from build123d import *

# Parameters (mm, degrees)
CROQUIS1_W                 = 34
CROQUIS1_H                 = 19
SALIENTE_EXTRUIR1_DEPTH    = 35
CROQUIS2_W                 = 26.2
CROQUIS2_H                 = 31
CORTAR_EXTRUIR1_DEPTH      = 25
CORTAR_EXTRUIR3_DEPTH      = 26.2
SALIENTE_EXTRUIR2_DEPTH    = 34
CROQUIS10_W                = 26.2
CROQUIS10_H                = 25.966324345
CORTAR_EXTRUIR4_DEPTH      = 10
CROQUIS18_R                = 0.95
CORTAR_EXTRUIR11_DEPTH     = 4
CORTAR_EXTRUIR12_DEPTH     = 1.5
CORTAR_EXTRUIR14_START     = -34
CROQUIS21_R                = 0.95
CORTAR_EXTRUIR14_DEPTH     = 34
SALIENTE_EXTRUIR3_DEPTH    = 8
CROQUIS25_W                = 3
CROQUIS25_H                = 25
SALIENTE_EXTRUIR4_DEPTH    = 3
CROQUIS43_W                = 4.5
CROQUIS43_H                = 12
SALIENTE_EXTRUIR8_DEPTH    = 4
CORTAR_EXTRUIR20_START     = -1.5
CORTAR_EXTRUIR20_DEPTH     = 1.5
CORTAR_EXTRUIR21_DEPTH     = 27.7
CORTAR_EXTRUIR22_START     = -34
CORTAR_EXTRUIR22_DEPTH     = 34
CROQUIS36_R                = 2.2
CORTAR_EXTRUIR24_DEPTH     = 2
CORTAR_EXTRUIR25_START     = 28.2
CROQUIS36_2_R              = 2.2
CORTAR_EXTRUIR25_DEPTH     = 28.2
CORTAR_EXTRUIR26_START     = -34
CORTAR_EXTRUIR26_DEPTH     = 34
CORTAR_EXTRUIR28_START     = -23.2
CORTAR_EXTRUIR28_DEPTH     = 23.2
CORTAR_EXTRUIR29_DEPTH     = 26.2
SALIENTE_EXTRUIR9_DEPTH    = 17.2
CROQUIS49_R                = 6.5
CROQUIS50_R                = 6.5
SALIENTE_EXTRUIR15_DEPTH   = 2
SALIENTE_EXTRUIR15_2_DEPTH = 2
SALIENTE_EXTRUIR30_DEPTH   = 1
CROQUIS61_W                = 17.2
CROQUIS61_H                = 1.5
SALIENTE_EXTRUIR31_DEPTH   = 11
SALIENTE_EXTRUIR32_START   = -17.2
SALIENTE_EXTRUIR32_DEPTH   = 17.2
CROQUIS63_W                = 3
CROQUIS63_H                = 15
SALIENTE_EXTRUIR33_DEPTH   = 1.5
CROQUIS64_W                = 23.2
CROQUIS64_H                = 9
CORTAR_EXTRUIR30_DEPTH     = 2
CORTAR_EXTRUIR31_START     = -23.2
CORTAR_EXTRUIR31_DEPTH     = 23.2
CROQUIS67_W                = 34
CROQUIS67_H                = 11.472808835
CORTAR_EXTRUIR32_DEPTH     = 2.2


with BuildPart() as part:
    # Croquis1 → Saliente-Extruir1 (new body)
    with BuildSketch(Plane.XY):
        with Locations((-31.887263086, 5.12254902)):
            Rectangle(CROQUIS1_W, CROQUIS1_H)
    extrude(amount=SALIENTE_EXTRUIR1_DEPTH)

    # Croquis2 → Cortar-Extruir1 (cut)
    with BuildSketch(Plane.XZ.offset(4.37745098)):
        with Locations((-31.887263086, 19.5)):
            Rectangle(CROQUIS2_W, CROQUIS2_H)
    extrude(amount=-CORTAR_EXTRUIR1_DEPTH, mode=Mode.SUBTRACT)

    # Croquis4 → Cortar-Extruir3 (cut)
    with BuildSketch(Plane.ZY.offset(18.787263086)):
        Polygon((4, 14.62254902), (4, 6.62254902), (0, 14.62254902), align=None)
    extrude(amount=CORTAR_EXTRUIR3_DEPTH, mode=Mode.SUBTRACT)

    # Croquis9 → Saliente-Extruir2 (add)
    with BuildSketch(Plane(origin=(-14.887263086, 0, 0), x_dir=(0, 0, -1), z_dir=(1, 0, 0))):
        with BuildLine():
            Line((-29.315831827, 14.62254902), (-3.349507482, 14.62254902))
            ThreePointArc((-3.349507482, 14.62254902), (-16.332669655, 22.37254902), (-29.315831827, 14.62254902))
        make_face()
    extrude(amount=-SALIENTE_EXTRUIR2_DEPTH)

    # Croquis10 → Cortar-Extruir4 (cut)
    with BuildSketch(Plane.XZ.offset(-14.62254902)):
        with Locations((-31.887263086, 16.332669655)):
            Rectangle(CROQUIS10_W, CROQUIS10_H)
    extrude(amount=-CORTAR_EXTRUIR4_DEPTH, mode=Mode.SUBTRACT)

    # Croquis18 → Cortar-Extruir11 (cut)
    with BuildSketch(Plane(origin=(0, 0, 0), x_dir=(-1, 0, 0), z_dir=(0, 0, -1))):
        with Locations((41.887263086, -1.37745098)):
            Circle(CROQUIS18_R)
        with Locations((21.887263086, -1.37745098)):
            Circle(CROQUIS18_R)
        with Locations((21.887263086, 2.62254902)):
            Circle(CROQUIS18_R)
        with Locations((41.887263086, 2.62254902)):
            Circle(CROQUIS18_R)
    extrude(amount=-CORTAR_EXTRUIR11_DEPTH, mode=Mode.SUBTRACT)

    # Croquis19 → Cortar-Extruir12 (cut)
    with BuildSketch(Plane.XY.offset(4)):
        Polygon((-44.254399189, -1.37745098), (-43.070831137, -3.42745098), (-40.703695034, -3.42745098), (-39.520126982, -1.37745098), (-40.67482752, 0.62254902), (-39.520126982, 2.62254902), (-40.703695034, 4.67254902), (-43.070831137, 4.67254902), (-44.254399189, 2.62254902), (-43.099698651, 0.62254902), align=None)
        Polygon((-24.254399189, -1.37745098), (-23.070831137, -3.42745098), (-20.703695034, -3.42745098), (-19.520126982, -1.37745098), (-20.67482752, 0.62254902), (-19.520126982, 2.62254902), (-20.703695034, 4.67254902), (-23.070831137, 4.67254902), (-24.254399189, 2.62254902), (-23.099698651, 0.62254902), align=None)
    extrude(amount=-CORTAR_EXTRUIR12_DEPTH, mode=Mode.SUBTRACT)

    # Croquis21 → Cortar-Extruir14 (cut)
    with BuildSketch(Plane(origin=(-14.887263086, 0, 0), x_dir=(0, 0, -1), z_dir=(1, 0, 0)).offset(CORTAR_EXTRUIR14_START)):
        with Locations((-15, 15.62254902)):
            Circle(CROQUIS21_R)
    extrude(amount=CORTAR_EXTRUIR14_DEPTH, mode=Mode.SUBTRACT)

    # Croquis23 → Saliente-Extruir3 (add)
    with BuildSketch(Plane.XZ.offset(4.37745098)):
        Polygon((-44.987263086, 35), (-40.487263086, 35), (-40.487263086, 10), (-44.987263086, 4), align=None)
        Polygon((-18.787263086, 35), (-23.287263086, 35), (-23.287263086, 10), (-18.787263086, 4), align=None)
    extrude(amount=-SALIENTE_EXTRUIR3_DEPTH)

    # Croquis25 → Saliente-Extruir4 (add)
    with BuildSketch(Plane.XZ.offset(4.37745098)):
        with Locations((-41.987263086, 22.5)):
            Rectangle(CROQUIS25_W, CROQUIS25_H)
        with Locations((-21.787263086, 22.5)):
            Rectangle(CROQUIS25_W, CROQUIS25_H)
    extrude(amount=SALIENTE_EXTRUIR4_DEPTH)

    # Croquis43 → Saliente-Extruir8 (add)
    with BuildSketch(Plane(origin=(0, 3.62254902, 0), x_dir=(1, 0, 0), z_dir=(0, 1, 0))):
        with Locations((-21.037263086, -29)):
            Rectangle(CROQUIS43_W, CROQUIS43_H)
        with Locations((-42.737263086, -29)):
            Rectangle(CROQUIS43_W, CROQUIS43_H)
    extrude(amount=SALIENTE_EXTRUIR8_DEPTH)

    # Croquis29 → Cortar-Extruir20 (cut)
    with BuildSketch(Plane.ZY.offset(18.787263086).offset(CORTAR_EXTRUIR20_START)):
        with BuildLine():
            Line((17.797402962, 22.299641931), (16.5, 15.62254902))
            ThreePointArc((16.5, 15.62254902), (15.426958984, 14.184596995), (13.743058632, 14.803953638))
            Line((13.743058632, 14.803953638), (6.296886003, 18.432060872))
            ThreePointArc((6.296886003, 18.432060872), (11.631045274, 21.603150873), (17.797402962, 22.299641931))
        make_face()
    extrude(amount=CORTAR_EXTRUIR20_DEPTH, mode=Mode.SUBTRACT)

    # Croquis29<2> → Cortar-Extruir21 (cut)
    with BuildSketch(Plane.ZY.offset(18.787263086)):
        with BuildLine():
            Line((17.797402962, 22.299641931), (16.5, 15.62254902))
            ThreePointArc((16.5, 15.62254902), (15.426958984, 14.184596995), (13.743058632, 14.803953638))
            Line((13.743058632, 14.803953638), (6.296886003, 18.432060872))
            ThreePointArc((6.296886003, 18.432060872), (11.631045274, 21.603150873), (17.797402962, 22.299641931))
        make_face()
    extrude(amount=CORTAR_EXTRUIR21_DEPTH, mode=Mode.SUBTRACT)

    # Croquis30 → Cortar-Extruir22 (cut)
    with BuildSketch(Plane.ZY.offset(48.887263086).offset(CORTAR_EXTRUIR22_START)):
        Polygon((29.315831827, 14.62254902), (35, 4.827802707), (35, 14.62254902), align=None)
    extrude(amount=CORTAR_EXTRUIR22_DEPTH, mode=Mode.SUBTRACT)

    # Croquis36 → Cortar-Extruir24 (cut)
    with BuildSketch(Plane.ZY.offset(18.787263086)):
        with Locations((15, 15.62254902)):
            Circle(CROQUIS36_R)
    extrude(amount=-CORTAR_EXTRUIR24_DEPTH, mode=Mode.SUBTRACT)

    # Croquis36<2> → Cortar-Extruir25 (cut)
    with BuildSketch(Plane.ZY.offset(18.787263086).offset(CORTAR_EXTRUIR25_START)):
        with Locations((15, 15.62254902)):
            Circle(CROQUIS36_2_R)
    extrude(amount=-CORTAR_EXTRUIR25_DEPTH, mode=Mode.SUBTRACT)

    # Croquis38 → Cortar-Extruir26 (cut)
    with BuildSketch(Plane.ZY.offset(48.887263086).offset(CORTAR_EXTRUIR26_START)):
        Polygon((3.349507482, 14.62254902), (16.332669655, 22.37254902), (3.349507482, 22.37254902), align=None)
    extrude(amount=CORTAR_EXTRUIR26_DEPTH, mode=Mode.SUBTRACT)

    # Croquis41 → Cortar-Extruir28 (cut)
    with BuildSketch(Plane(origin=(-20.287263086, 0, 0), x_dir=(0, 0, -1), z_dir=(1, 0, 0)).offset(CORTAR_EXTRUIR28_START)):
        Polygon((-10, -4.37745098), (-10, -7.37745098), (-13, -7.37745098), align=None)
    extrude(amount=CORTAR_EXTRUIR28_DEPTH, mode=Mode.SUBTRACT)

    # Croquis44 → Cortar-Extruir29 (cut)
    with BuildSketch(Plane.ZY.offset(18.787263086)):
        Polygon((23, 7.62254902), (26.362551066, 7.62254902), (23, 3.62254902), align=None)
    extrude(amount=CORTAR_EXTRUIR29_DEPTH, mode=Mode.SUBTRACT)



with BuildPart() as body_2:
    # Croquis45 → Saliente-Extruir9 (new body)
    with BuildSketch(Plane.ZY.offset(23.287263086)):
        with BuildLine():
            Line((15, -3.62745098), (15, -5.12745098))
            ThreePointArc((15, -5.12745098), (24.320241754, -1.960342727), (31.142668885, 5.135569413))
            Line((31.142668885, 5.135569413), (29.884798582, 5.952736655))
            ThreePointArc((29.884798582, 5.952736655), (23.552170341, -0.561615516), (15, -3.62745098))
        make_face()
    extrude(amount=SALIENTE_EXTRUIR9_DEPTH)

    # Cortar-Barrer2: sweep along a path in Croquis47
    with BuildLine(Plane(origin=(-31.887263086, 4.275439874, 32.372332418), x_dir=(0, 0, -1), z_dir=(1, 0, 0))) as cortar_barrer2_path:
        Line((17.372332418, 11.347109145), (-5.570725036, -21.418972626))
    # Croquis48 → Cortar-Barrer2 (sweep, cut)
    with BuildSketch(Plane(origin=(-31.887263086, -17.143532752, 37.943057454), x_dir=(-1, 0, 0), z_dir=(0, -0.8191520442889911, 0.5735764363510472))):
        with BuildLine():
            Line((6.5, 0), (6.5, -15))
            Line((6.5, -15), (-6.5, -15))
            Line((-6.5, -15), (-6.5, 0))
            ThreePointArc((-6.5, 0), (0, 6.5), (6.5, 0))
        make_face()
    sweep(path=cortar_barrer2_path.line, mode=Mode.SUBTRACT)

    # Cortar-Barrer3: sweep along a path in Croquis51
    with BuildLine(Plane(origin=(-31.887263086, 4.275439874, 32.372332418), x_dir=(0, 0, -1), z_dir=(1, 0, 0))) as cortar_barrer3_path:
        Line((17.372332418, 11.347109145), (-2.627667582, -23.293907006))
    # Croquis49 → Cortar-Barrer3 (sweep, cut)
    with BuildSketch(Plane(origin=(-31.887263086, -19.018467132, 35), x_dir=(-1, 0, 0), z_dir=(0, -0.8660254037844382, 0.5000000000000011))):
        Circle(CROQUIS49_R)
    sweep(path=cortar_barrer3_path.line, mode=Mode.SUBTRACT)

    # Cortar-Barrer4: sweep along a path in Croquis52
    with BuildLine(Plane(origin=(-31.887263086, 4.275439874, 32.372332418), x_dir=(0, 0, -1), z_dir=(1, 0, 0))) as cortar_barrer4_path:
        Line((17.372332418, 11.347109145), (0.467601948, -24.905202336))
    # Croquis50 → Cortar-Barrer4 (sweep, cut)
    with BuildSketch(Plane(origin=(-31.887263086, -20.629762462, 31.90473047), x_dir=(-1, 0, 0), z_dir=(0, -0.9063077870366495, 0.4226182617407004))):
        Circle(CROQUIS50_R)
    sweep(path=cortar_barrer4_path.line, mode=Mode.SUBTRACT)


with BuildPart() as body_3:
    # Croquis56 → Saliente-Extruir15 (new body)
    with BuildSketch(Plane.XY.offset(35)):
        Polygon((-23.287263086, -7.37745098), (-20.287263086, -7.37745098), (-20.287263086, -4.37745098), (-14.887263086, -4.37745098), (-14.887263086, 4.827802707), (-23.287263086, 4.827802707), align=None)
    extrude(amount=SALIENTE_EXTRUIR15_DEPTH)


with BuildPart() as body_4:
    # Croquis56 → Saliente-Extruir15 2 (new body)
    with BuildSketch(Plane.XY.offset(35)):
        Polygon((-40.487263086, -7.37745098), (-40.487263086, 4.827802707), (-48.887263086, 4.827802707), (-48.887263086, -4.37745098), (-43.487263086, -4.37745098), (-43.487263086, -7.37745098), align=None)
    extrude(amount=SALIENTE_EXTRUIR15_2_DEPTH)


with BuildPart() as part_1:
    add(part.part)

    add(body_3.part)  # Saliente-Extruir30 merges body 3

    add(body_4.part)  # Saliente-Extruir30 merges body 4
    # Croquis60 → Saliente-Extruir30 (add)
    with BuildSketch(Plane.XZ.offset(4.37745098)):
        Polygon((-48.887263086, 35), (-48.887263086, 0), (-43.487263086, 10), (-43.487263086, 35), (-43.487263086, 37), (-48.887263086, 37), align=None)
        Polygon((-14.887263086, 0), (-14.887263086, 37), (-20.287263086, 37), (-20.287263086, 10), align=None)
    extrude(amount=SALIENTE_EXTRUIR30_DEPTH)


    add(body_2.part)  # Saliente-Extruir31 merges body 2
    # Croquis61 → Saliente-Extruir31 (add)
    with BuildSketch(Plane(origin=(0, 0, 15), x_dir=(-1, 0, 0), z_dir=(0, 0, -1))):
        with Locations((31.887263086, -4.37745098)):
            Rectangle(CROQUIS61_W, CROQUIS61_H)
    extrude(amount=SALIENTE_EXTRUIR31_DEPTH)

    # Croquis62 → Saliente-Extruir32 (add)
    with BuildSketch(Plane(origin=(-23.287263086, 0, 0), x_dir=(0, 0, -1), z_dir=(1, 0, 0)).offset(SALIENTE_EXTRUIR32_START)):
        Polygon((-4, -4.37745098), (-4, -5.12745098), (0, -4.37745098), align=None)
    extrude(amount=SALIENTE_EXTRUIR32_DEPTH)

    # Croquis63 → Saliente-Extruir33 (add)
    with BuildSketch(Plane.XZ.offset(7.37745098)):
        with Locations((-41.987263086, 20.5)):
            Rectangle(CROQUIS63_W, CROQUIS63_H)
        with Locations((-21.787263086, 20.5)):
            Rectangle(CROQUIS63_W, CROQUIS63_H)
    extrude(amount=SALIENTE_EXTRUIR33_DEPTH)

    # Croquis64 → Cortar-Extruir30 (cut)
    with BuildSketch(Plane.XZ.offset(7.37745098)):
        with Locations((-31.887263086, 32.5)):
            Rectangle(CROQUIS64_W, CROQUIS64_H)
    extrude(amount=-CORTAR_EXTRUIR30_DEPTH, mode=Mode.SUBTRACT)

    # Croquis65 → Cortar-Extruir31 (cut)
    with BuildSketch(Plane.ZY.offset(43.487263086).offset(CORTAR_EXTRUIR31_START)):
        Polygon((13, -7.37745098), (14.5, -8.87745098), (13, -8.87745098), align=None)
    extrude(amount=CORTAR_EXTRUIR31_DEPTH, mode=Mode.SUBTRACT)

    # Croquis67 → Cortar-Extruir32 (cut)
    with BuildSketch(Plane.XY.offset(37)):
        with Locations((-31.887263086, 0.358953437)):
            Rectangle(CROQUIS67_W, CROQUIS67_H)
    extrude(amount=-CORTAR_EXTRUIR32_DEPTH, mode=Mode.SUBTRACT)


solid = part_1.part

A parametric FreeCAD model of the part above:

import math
import FreeCAD as App
import Part
import Sketcher
Q = App.Units.Quantity


def add_polygon(sketch, points):
    """Adds a closed chain of lines whose ends are joined by coincident constraints."""
    first, n = sketch.GeometryCount, len(points)
    for a, b in zip(points, points[1:] + points[:1]):
        sketch.addGeometry(Part.LineSegment(App.Vector(*a, 0), App.Vector(*b, 0)), False)
    for i in range(n):
        sketch.addConstraint(Sketcher.Constraint("Coincident", first + i, 2, first + (i + 1) % n, 1))

doc = App.newDocument("Part")
body = doc.addObject("PartDesign::Body", "Body")

sketch1 = body.newObject("Sketcher::SketchObject", "Sketch")
sketch1.AttachmentSupport = (doc.getObject("XY_Plane"), [""])
sketch1.MapMode = "FlatFace"
add_polygon(sketch1, [(-48.887263, 14.622549), (-48.887263, -4.377451), (-14.887263, -4.377451), (-14.887263, 14.622549)])
sketch1.addConstraint(Sketcher.Constraint("Vertical", 0))
sketch1.addConstraint(Sketcher.Constraint("Horizontal", 1))
sketch1.addConstraint(Sketcher.Constraint("Vertical", 2))
sketch1.addConstraint(Sketcher.Constraint("Horizontal", 3))
sketch1.addConstraint(Sketcher.Constraint("DistanceX", 1, 1, 1, 2, 34.0))
sketch1.addConstraint(Sketcher.Constraint("DistanceY", 0, 2, 0, 1, 19.0))
sketch1.addConstraint(Sketcher.Constraint("DistanceY", 0, 2, -1, 1, 4.377451))
sketch1.addConstraint(Sketcher.Constraint("DistanceX", 0, 2, -1, 1, 48.887263))
pad1 = body.newObject("PartDesign::Pad", "Pad")
pad1.Profile = sketch1
pad1.Length = 35

sketch2 = body.newObject("Sketcher::SketchObject", "Sketch001")
sketch2.AttachmentSupport = (doc.getObject("XZ_Plane"), [""])
sketch2.MapMode = "FlatFace"
sketch2.AttachmentOffset = App.Placement(App.Vector(0, 0, 4.377451), App.Rotation())
add_polygon(sketch2, [(-44.987263, 35), (-44.987263, 4), (-18.787263, 4), (-18.787263, 35)])
sketch2.addConstraint(Sketcher.Constraint("Vertical", 0))
sketch2.addConstraint(Sketcher.Constraint("Horizontal", 1))
sketch2.addConstraint(Sketcher.Constraint("Vertical", 2))
sketch2.addConstraint(Sketcher.Constraint("Horizontal", 3))
sketch2.addConstraint(Sketcher.Constraint("DistanceY", 0, 2, 0, 1, 31.0))
sketch2.addConstraint(Sketcher.Constraint("DistanceX", 1, 1, 1, 2, 26.2))
sketch2.addConstraint(Sketcher.Constraint("DistanceY", -1, 1, 0, 2, 4.0))
sketch2.addConstraint(Sketcher.Constraint("DistanceX", 0, 2, -1, 1, 44.987263))
pocket1 = body.newObject("PartDesign::Pocket", "Pocket")
pocket1.Profile = sketch2
pocket1.Length = 25

sketch3 = body.newObject("Sketcher::SketchObject", "Sketch002")
sketch3.AttachmentSupport = (doc.getObject("YZ_Plane"), [""])
sketch3.MapMode = "FlatFace"
sketch3.AttachmentOffset = App.Placement(App.Vector(0, 0, -18.787263), App.Rotation())
add_polygon(sketch3, [(6.622549, 4), (14.622549, 4), (14.622549, 0)])
sketch3.addConstraint(Sketcher.Constraint("Horizontal", 0))
sketch3.addConstraint(Sketcher.Constraint("Vertical", 1))
sketch3.addConstraint(Sketcher.Constraint("PointOnObject", 1, 2, -1))
sketch3.addConstraint(Sketcher.Constraint("DistanceX", 0, 1, 0, 2, 8.0))
sketch3.addConstraint(Sketcher.Constraint("DistanceY", 1, 2, 1, 1, 4.0))
sketch3.addConstraint(Sketcher.Constraint("DistanceX", -1, 1, 0, 2, 14.622549))
pocket2 = body.newObject("PartDesign::Pocket", "Pocket001")
pocket2.Profile = sketch3
pocket2.Length = 26.2

sketch4 = body.newObject("Sketcher::SketchObject", "Sketch003")
sketch4.AttachmentSupport = (doc.getObject("YZ_Plane"), [""])
sketch4.MapMode = "FlatFace"
sketch4.AttachmentOffset = App.Placement(App.Vector(0, 0, -14.887263), App.Rotation())
sketch4.addGeometry(Part.LineSegment(App.Vector(14.622549, 29.315832, 0), App.Vector(14.622549, 3.349507, 0)), False)
sketch4.addGeometry(Part.ArcOfCircle(Part.Circle(App.Vector(7.622549, 16.33267, 0), App.Vector(0, 0, 1), 14.75), math.radians(-61.668235), math.radians(61.668235)), False)
sketch4.addConstraint(Sketcher.Constraint("Coincident", 0, 1, 1, 2))
sketch4.addConstraint(Sketcher.Constraint("Coincident", 1, 1, 0, 2))
sketch4.addConstraint(Sketcher.Constraint("Vertical", 0))
sketch4.addConstraint(Sketcher.Constraint("Radius", 1, 14.75))
sketch4.addConstraint(Sketcher.Constraint("DistanceX", 1, 3, 0, 1, 7.0))
sketch4.addConstraint(Sketcher.Constraint("DistanceX", -1, 1, 1, 3, 7.622549))
sketch4.addConstraint(Sketcher.Constraint("DistanceY", -1, 1, 1, 3, 16.33267))
pad2 = body.newObject("PartDesign::Pad", "Pad001")
pad2.Profile = sketch4
pad2.Length = 34
pad2.Reversed = True

sketch5 = body.newObject("Sketcher::SketchObject", "Sketch004")
sketch5.AttachmentSupport = (doc.getObject("XZ_Plane"), [""])
sketch5.MapMode = "FlatFace"
sketch5.AttachmentOffset = App.Placement(App.Vector(0, 0, -14.622549), App.Rotation())
add_polygon(sketch5, [(-44.987263, 29.315832), (-44.987263, 3.349507), (-18.787263, 3.349507), (-18.787263, 29.315832)])
sketch5.addConstraint(Sketcher.Constraint("Vertical", 0))
sketch5.addConstraint(Sketcher.Constraint("Horizontal", 1))
sketch5.addConstraint(Sketcher.Constraint("Vertical", 2))
sketch5.addConstraint(Sketcher.Constraint("Horizontal", 3))
sketch5.addConstraint(Sketcher.Constraint("DistanceX", 1, 1, 1, 2, 26.2))
sketch5.addConstraint(Sketcher.Constraint("DistanceY", 0, 2, 0, 1, 25.966324))
sketch5.addConstraint(Sketcher.Constraint("DistanceY", -1, 1, 2, 2, 29.315832))
sketch5.addConstraint(Sketcher.Constraint("DistanceX", 0, 2, -1, 1, 44.987263))
pocket3 = body.newObject("PartDesign::Pocket", "Pocket002")
pocket3.Profile = sketch5
pocket3.Length = 10

sketch6 = body.newObject("Sketcher::SketchObject", "Sketch005")
sketch6.AttachmentSupport = (doc.getObject("XY_Plane"), [""])
sketch6.MapMode = "FlatFace"
sketch6.addGeometry(Part.Circle(App.Vector(-41.887263, -1.377451, 0), App.Vector(0, 0, 1), 0.95), False)
sketch6.addGeometry(Part.Circle(App.Vector(-21.887263, -1.377451, 0), App.Vector(0, 0, 1), 0.95), False)
sketch6.addGeometry(Part.Circle(App.Vector(-21.887263, 2.622549, 0), App.Vector(0, 0, 1), 0.95), False)
sketch6.addGeometry(Part.Circle(App.Vector(-41.887263, 2.622549, 0), App.Vector(0, 0, 1), 0.95), False)
sketch6.addConstraint(Sketcher.Constraint("Equal", 0, 1))
sketch6.addConstraint(Sketcher.Constraint("Equal", 1, 2))
sketch6.addConstraint(Sketcher.Constraint("Equal", 2, 3))
sketch6.addConstraint(Sketcher.Constraint("Horizontal", 0, 3, 1, 3))
sketch6.addConstraint(Sketcher.Constraint("Horizontal", 2, 3, 3, 3))
sketch6.addConstraint(Sketcher.Constraint("Vertical", 1, 3, 2, 3))
sketch6.addConstraint(Sketcher.Constraint("Vertical", 0, 3, 3, 3))
sketch6.addConstraint(Sketcher.Constraint("Diameter", 0, 1.9))
sketch6.addConstraint(Sketcher.Constraint("DistanceX", 0, 3, 1, 3, 20.0))
sketch6.addConstraint(Sketcher.Constraint("DistanceY", 1, 3, 2, 3, 4.0))
sketch6.addConstraint(Sketcher.Constraint("DistanceY", 0, 3, -1, 1, 1.377451))
sketch6.addConstraint(Sketcher.Constraint("DistanceX", 0, 3, -1, 1, 41.887263))
pocket4 = body.newObject("PartDesign::Pocket", "Pocket003")
pocket4.Profile = sketch6
pocket4.Length = 4
pocket4.Reversed = True

sketch7 = body.newObject("Sketcher::SketchObject", "Sketch006")
sketch7.AttachmentSupport = (doc.getObject("XY_Plane"), [""])
sketch7.MapMode = "FlatFace"
sketch7.AttachmentOffset = App.Placement(App.Vector(0, 0, 4), App.Rotation())
add_polygon(sketch7, [(-44.254399, -1.377451), (-43.070831, -3.427451), (-40.703695, -3.427451), (-39.520127, -1.377451), (-40.674828, 0.622549), (-39.520127, 2.622549), (-40.703695, 4.672549), (-43.070831, 4.672549), (-44.254399, 2.622549), (-43.099699, 0.622549)])
add_polygon(sketch7, [(-24.254399, -1.377451), (-23.070831, -3.427451), (-20.703695, -3.427451), (-19.520127, -1.377451), (-20.674828, 0.622549), (-19.520127, 2.622549), (-20.703695, 4.672549), (-23.070831, 4.672549), (-24.254399, 2.622549), (-23.099699, 0.622549)])
sketch7.addConstraint(Sketcher.Constraint("Horizontal", 1))
sketch7.addConstraint(Sketcher.Constraint("Horizontal", 6))
sketch7.addConstraint(Sketcher.Constraint("Horizontal", 11))
sketch7.addConstraint(Sketcher.Constraint("Horizontal", 16))
sketch7.addConstraint(Sketcher.Constraint("Parallel", 0, 3))
sketch7.addConstraint(Sketcher.Constraint("Parallel", 2, 4))
sketch7.addConstraint(Sketcher.Constraint("Parallel", 3, 5))
sketch7.addConstraint(Sketcher.Constraint("Parallel", 4, 7))
sketch7.addConstraint(Sketcher.Constraint("Parallel", 5, 8))
sketch7.addConstraint(Sketcher.Constraint("Parallel", 7, 9))
sketch7.addConstraint(Sketcher.Constraint("Parallel", 8, 10))
sketch7.addConstraint(Sketcher.Constraint("Parallel", 9, 12))
sketch7.addConstraint(Sketcher.Constraint("Parallel", 10, 13))
sketch7.addConstraint(Sketcher.Constraint("Parallel", 12, 14))
sketch7.addConstraint(Sketcher.Constraint("Parallel", 13, 15))
sketch7.addConstraint(Sketcher.Constraint("Parallel", 14, 17))
sketch7.addConstraint(Sketcher.Constraint("Parallel", 15, 18))
sketch7.addConstraint(Sketcher.Constraint("Parallel", 17, 19))
sketch7.addConstraint(Sketcher.Constraint("Horizontal", 4, 2, 7, 2))
sketch7.addConstraint(Sketcher.Constraint("Horizontal", 3, 2, 8, 2))
sketch7.addConstraint(Sketcher.Constraint("Horizontal", 2, 2, 9, 2))
sketch7.addConstraint(Sketcher.Constraint("Horizontal", 1, 2, 10, 2))
sketch7.addConstraint(Sketcher.Constraint("Horizontal", 9, 2, 12, 2))
sketch7.addConstraint(Sketcher.Constraint("Horizontal", 8, 2, 13, 2))
sketch7.addConstraint(Sketcher.Constraint("Horizontal", 7, 2, 14, 2))
sketch7.addConstraint(Sketcher.Constraint("Horizontal", 6, 2, 15, 2))
sketch7.addConstraint(Sketcher.Constraint("Horizontal", 14, 2, 17, 2))
sketch7.addConstraint(Sketcher.Constraint("Horizontal", 13, 2, 18, 2))
sketch7.addConstraint(Sketcher.Constraint("Horizontal", 12, 2, 19, 2))
sketch7.addConstraint(Sketcher.Constraint("Vertical", 2, 2, 4, 2))
sketch7.addConstraint(Sketcher.Constraint("Vertical", 1, 2, 5, 2))
sketch7.addConstraint(Sketcher.Constraint("Vertical", 0, 2, 6, 2))
sketch7.addConstraint(Sketcher.Constraint("Equal", 6, 11))
sketch7.addConstraint(Sketcher.Constraint("Angle", 0, Q("-60 deg")))
sketch7.addConstraint(Sketcher.Constraint("DistanceY", 2, 2, 3, 2, 2.0))
sketch7.addConstraint(Sketcher.Constraint("DistanceX", 1, 2, 11, 2, 20.0))
sketch7.addConstraint(Sketcher.Constraint("DistanceY", 1, 2, 5, 2, 8.1))
sketch7.addConstraint(Sketcher.Constraint("DistanceX", 7, 2, -1, 1, 44.254399))
sketch7.addConstraint(Sketcher.Constraint("DistanceX", 1, 1, 1, 2, 2.367136))
sketch7.addConstraint(Sketcher.Constraint("DistanceY", 0, 2, -1, 1, 3.427451))
pocket5 = body.newObject("PartDesign::Pocket", "Pocket004")
pocket5.Profile = sketch7
pocket5.Length = 1.5

sketch8 = body.newObject("Sketcher::SketchObject", "Sketch007")
sketch8.AttachmentSupport = (doc.getObject("YZ_Plane"), [""])
sketch8.MapMode = "FlatFace"
sketch8.AttachmentOffset = App.Placement(App.Vector(0, 0, -48.887263), App.Rotation())
sketch8.addGeometry(Part.Circle(App.Vector(15.622549, 15, 0), App.Vector(0, 0, 1), 0.95), False)
sketch8.addConstraint(Sketcher.Constraint("Diameter", 0, 1.9))
sketch8.addConstraint(Sketcher.Constraint("DistanceY", -1, 1, 0, 3, 15.0))
sketch8.addConstraint(Sketcher.Constraint("DistanceX", -1, 1, 0, 3, 15.622549))
pocket6 = body.newObject("PartDesign::Pocket", "Pocket005")
pocket6.Profile = sketch8
pocket6.Length = 34
pocket6.Reversed = True

sketch9 = body.newObject("Sketcher::SketchObject", "Sketch008")
sketch9.AttachmentSupport = (doc.getObject("XZ_Plane"), [""])
sketch9.MapMode = "FlatFace"
sketch9.AttachmentOffset = App.Placement(App.Vector(0, 0, 4.377451), App.Rotation())
add_polygon(sketch9, [(-40.487263, 35), (-44.987263, 35), (-44.987263, 4), (-40.487263, 10)])
add_polygon(sketch9, [(-18.787263, 35), (-23.287263, 35), (-23.287263, 10), (-18.787263, 4)])
sketch9.addConstraint(Sketcher.Constraint("Horizontal", 0))
sketch9.addConstraint(Sketcher.Constraint("Vertical", 1))
sketch9.addConstraint(Sketcher.Constraint("Vertical", 3))
sketch9.addConstraint(Sketcher.Constraint("Horizontal", 4))
sketch9.addConstraint(Sketcher.Constraint("Vertical", 5))
sketch9.addConstraint(Sketcher.Constraint("Vertical", 7))
sketch9.addConstraint(Sketcher.Constraint("Horizontal", 3, 2, 4, 2))
sketch9.addConstraint(Sketcher.Constraint("Horizontal", 2, 2, 5, 2))
sketch9.addConstraint(Sketcher.Constraint("Horizontal", 1, 2, 6, 2))
sketch9.addConstraint(Sketcher.Constraint("Equal", 0, 4))
sketch9.addConstraint(Sketcher.Constraint("DistanceY", 1, 2, 1, 1, 31.0))
sketch9.addConstraint(Sketcher.Constraint("DistanceY", 3, 1, 3, 2, 25.0))
sketch9.addConstraint(Sketcher.Constraint("DistanceX", 0, 2, 0, 1, 4.5))
sketch9.addConstraint(Sketcher.Constraint("DistanceY", -1, 1, 0, 2, 35.0))
sketch9.addConstraint(Sketcher.Constraint("DistanceX", 3, 2, 4, 2, 17.2))
sketch9.addConstraint(Sketcher.Constraint("DistanceX", 0, 2, -1, 1, 44.987263))
pad3 = body.newObject("PartDesign::Pad", "Pad002")
pad3.Profile = sketch9
pad3.Length = 8
pad3.Reversed = True

sketch10 = body.newObject("Sketcher::SketchObject", "Sketch009")
sketch10.AttachmentSupport = (doc.getObject("XZ_Plane"), [""])
sketch10.MapMode = "FlatFace"
sketch10.AttachmentOffset = App.Placement(App.Vector(0, 0, 4.377451), App.Rotation())
add_polygon(sketch10, [(-43.487263, 35), (-43.487263, 10), (-40.487263, 10), (-40.487263, 35)])
add_polygon(sketch10, [(-23.287263, 35), (-23.287263, 10), (-20.287263, 10), (-20.287263, 35)])
sketch10.addConstraint(Sketcher.Constraint("Vertical", 0))
sketch10.addConstraint(Sketcher.Constraint("Horizontal", 1))
sketch10.addConstraint(Sketcher.Constraint("Vertical", 2))
sketch10.addConstraint(Sketcher.Constraint("Horizontal", 3))
sketch10.addConstraint(Sketcher.Constraint("Vertical", 4))
sketch10.addConstraint(Sketcher.Constraint("Horizontal", 5))
sketch10.addConstraint(Sketcher.Constraint("Vertical", 6))
sketch10.addConstraint(Sketcher.Constraint("Horizontal", 7))
sketch10.addConstraint(Sketcher.Constraint("Horizontal", 1, 2, 4, 2))
sketch10.addConstraint(Sketcher.Constraint("Horizontal", 3, 2, 6, 2))
sketch10.addConstraint(Sketcher.Constraint("Equal", 3, 5))
sketch10.addConstraint(Sketcher.Constraint("DistanceX", 1, 1, 1, 2, 3.0))
sketch10.addConstraint(Sketcher.Constraint("DistanceY", 0, 2, 0, 1, 25.0))
sketch10.addConstraint(Sketcher.Constraint("DistanceY", -1, 1, 0, 2, 10.0))
sketch10.addConstraint(Sketcher.Constraint("DistanceX", 1, 2, 4, 2, 17.2))
sketch10.addConstraint(Sketcher.Constraint("DistanceX", 0, 2, -1, 1, 43.487263))
pad4 = body.newObject("PartDesign::Pad", "Pad003")
pad4.Profile = sketch10
pad4.Length = 3

sketch11 = body.newObject("Sketcher::SketchObject", "Sketch010")
sketch11.AttachmentSupport = (doc.getObject("XZ_Plane"), [""])
sketch11.MapMode = "FlatFace"
sketch11.AttachmentOffset = App.Placement(App.Vector(0, 0, -3.622549), App.Rotation())
add_polygon(sketch11, [(-23.287263, 23), (-23.287263, 35), (-18.787263, 35), (-18.787263, 23)])
add_polygon(sketch11, [(-44.987263, 23), (-44.987263, 35), (-40.487263, 35), (-40.487263, 23)])
sketch11.addConstraint(Sketcher.Constraint("Vertical", 0))
sketch11.addConstraint(Sketcher.Constraint("Horizontal", 1))
sketch11.addConstraint(Sketcher.Constraint("Vertical", 2))
sketch11.addConstraint(Sketcher.Constraint("Horizontal", 3))
sketch11.addConstraint(Sketcher.Constraint("Vertical", 4))
sketch11.addConstraint(Sketcher.Constraint("Horizontal", 5))
sketch11.addConstraint(Sketcher.Constraint("Vertical", 6))
sketch11.addConstraint(Sketcher.Constraint("Horizontal", 7))
sketch11.addConstraint(Sketcher.Constraint("Horizontal", 1, 2, 4, 2))
sketch11.addConstraint(Sketcher.Constraint("Horizontal", 3, 2, 6, 2))
sketch11.addConstraint(Sketcher.Constraint("Equal", 3, 5))
sketch11.addConstraint(Sketcher.Constraint("DistanceY", 0, 1, 0, 2, 12.0))
sketch11.addConstraint(Sketcher.Constraint("DistanceX", 1, 1, 1, 2, 4.5))
sketch11.addConstraint(Sketcher.Constraint("DistanceY", -1, 1, 0, 2, 35.0))
sketch11.addConstraint(Sketcher.Constraint("DistanceX", 4, 2, 0, 2, 21.7))
sketch11.addConstraint(Sketcher.Constraint("DistanceX", 0, 2, -1, 1, 23.287263))
pad5 = body.newObject("PartDesign::Pad", "Pad004")
pad5.Profile = sketch11
pad5.Length = 4
pad5.Reversed = True

sketch12 = body.newObject("Sketcher::SketchObject", "Sketch011")
sketch12.AttachmentSupport = (doc.getObject("YZ_Plane"), [""])
sketch12.MapMode = "FlatFace"
sketch12.AttachmentOffset = App.Placement(App.Vector(0, 0, -17.287263), App.Rotation())
sketch12.addGeometry(Part.LineSegment(App.Vector(15.622549, 16.5, 0), App.Vector(22.299642, 17.797403, 0)), False)
sketch12.addGeometry(Part.ArcOfCircle(Part.Circle(App.Vector(7.622549, 16.33267, 0), App.Vector(0, 0, 1), 14.75), math.radians(-42.874292), math.radians(5.69909)), False)
sketch12.addGeometry(Part.LineSegment(App.Vector(18.432061, 6.296886, 0), App.Vector(14.803954, 13.743059, 0)), False)
sketch12.addGeometry(Part.ArcOfCircle(Part.Circle(App.Vector(15.622549, 15, 0), App.Vector(0, 0, 1), 1.5), math.radians(90), math.radians(236.925419)), False)
sketch12.addConstraint(Sketcher.Constraint("Coincident", 0, 2, 1, 2))
sketch12.addConstraint(Sketcher.Constraint("Coincident", 1, 1, 2, 1))
sketch12.addConstraint(Sketcher.Constraint("Coincident", 2, 2, 3, 2))
sketch12.addConstraint(Sketcher.Constraint("Coincident", 3, 1, 0, 1))
sketch12.addConstraint(Sketcher.Constraint("Radius", 3, 1.5))
sketch12.addConstraint(Sketcher.Constraint("Radius", 1, 14.75))
sketch12.addConstraint(Sketcher.Constraint("DistanceY", -1, 1, 3, 3, 15.0))
sketch12.addConstraint(Sketcher.Constraint("DistanceX", 1, 3, 3, 3, 8.0))
sketch12.addConstraint(Sketcher.Constraint("DistanceX", 1, 3, 3, 1, 8.0))
sketch12.addConstraint(Sketcher.Constraint("DistanceX", -1, 1, 1, 3, 7.622549))
sketch12.addConstraint(Sketcher.Constraint("DistanceY", -1, 1, 1, 3, 16.33267))
sketch12.addConstraint(Sketcher.Constraint("DistanceX", -1, 1, 0, 2, 22.299642))
sketch12.addConstraint(Sketcher.Constraint("DistanceX", -1, 1, 1, 1, 18.432061))
sketch12.addConstraint(Sketcher.Constraint("DistanceY", -1, 1, 2, 2, 13.743059))
pocket7 = body.newObject("PartDesign::Pocket", "Pocket006")
pocket7.Profile = sketch12
pocket7.Length = 1.5

sketch13 = body.newObject("Sketcher::SketchObject", "Sketch012")
sketch13.AttachmentSupport = (doc.getObject("YZ_Plane"), [""])
sketch13.MapMode = "FlatFace"
sketch13.AttachmentOffset = App.Placement(App.Vector(0, 0, -18.787263), App.Rotation())
sketch13.addGeometry(Part.LineSegment(App.Vector(15.622549, 16.5, 0), App.Vector(22.299642, 17.797403, 0)), False)
sketch13.addGeometry(Part.ArcOfCircle(Part.Circle(App.Vector(7.622549, 16.33267, 0), App.Vector(0, 0, 1), 14.75), math.radians(-42.874292), math.radians(5.69909)), False)
sketch13.addGeometry(Part.LineSegment(App.Vector(18.432061, 6.296886, 0), App.Vector(14.803954, 13.743059, 0)), False)
sketch13.addGeometry(Part.ArcOfCircle(Part.Circle(App.Vector(15.622549, 15, 0), App.Vector(0, 0, 1), 1.5), math.radians(90), math.radians(236.925419)), False)
sketch13.addConstraint(Sketcher.Constraint("Coincident", 0, 2, 1, 2))
sketch13.addConstraint(Sketcher.Constraint("Coincident", 1, 1, 2, 1))
sketch13.addConstraint(Sketcher.Constraint("Coincident", 2, 2, 3, 2))
sketch13.addConstraint(Sketcher.Constraint("Coincident", 3, 1, 0, 1))
sketch13.addConstraint(Sketcher.Constraint("Radius", 3, 1.5))
sketch13.addConstraint(Sketcher.Constraint("Radius", 1, 14.75))
sketch13.addConstraint(Sketcher.Constraint("DistanceY", -1, 1, 3, 3, 15.0))
sketch13.addConstraint(Sketcher.Constraint("DistanceX", 1, 3, 3, 3, 8.0))
sketch13.addConstraint(Sketcher.Constraint("DistanceX", 1, 3, 3, 1, 8.0))
sketch13.addConstraint(Sketcher.Constraint("DistanceX", -1, 1, 1, 3, 7.622549))
sketch13.addConstraint(Sketcher.Constraint("DistanceY", -1, 1, 1, 3, 16.33267))
sketch13.addConstraint(Sketcher.Constraint("DistanceX", -1, 1, 0, 2, 22.299642))
sketch13.addConstraint(Sketcher.Constraint("DistanceX", -1, 1, 1, 1, 18.432061))
sketch13.addConstraint(Sketcher.Constraint("DistanceY", -1, 1, 2, 2, 13.743059))
pocket8 = body.newObject("PartDesign::Pocket", "Pocket007")
pocket8.Profile = sketch13
pocket8.Length = 27.7

sketch14 = body.newObject("Sketcher::SketchObject", "Sketch013")
sketch14.AttachmentSupport = (doc.getObject("YZ_Plane"), [""])
sketch14.MapMode = "FlatFace"
sketch14.AttachmentOffset = App.Placement(App.Vector(0, 0, -14.887263), App.Rotation())
add_polygon(sketch14, [(14.622549, 29.315832), (4.827803, 35), (14.622549, 35)])
sketch14.addConstraint(Sketcher.Constraint("Horizontal", 1))
sketch14.addConstraint(Sketcher.Constraint("Vertical", 2))
sketch14.addConstraint(Sketcher.Constraint("DistanceY", -1, 1, 0, 2, 35.0))
sketch14.addConstraint(Sketcher.Constraint("DistanceY", 2, 2, 2, 1, 5.684168))
sketch14.addConstraint(Sketcher.Constraint("Distance", 0, 11.324611))
sketch14.addConstraint(Sketcher.Constraint("DistanceX", -1, 1, 1, 2, 14.622549))
pocket9 = body.newObject("PartDesign::Pocket", "Pocket008")
pocket9.Profile = sketch14
pocket9.Length = 34

sketch15 = body.newObject("Sketcher::SketchObject", "Sketch014")
sketch15.AttachmentSupport = (doc.getObject("YZ_Plane"), [""])
sketch15.MapMode = "FlatFace"
sketch15.AttachmentOffset = App.Placement(App.Vector(0, 0, -18.787263), App.Rotation())
sketch15.addGeometry(Part.Circle(App.Vector(15.622549, 15, 0), App.Vector(0, 0, 1), 2.2), False)
sketch15.addConstraint(Sketcher.Constraint("Diameter", 0, 4.4))
sketch15.addConstraint(Sketcher.Constraint("DistanceY", -1, 1, 0, 3, 15.0))
sketch15.addConstraint(Sketcher.Constraint("DistanceX", -1, 1, 0, 3, 15.622549))
pocket10 = body.newObject("PartDesign::Pocket", "Pocket009")
pocket10.Profile = sketch15
pocket10.Length = 2
pocket10.Reversed = True

sketch16 = body.newObject("Sketcher::SketchObject", "Sketch015")
sketch16.AttachmentSupport = (doc.getObject("YZ_Plane"), [""])
sketch16.MapMode = "FlatFace"
sketch16.AttachmentOffset = App.Placement(App.Vector(0, 0, -46.987263), App.Rotation())
sketch16.addGeometry(Part.Circle(App.Vector(15.622549, 15, 0), App.Vector(0, 0, 1), 2.2), False)
sketch16.addConstraint(Sketcher.Constraint("Diameter", 0, 4.4))
sketch16.addConstraint(Sketcher.Constraint("DistanceY", -1, 1, 0, 3, 15.0))
sketch16.addConstraint(Sketcher.Constraint("DistanceX", -1, 1, 0, 3, 15.622549))
pocket11 = body.newObject("PartDesign::Pocket", "Pocket010")
pocket11.Profile = sketch16
pocket11.Length = 28.2
pocket11.Reversed = True

sketch17 = body.newObject("Sketcher::SketchObject", "Sketch016")
sketch17.AttachmentSupport = (doc.getObject("YZ_Plane"), [""])
sketch17.MapMode = "FlatFace"
sketch17.AttachmentOffset = App.Placement(App.Vector(0, 0, -14.887263), App.Rotation())
add_polygon(sketch17, [(14.622549, 3.349507), (22.372549, 16.33267), (22.372549, 3.349507)])
sketch17.addConstraint(Sketcher.Constraint("Vertical", 1))
sketch17.addConstraint(Sketcher.Constraint("Horizontal", 2))
sketch17.addConstraint(Sketcher.Constraint("DistanceX", 2, 2, 2, 1, 7.75))
sketch17.addConstraint(Sketcher.Constraint("Distance", 0, 15.120351))
sketch17.addConstraint(Sketcher.Constraint("DistanceX", -1, 1, 0, 2, 22.372549))
sketch17.addConstraint(Sketcher.Constraint("DistanceY", -1, 1, 0, 2, 16.33267))
pocket12 = body.newObject("PartDesign::Pocket", "Pocket011")
pocket12.Profile = sketch17
pocket12.Length = 34

sketch18 = body.newObject("Sketcher::SketchObject", "Sketch017")
sketch18.AttachmentSupport = (doc.getObject("YZ_Plane"), [""])
sketch18.MapMode = "FlatFace"
sketch18.AttachmentOffset = App.Placement(App.Vector(0, 0, -43.487263), App.Rotation())
add_polygon(sketch18, [(-7.377451, 10), (-4.377451, 10), (-7.377451, 13)])
sketch18.addConstraint(Sketcher.Constraint("Horizontal", 0))
sketch18.addConstraint(Sketcher.Constraint("Vertical", 2))
sketch18.addConstraint(Sketcher.Constraint("Equal", 0, 2))
sketch18.addConstraint(Sketcher.Constraint("DistanceX", 0, 1, 0, 2, 3.0))
sketch18.addConstraint(Sketcher.Constraint("DistanceY", -1, 1, 0, 2, 10.0))
sketch18.addConstraint(Sketcher.Constraint("DistanceX", 0, 2, -1, 1, 4.377451))
pocket13 = body.newObject("PartDesign::Pocket", "Pocket012")
pocket13.Profile = sketch18
pocket13.Length = 23.2
pocket13.Reversed = True

sketch19 = body.newObject("Sketcher::SketchObject", "Sketch018")
sketch19.AttachmentSupport = (doc.getObject("YZ_Plane"), [""])
sketch19.MapMode = "FlatFace"
sketch19.AttachmentOffset = App.Placement(App.Vector(0, 0, -18.787263), App.Rotation())
add_polygon(sketch19, [(7.622549, 26.362551), (7.622549, 23), (3.622549, 23)])
sketch19.addConstraint(Sketcher.Constraint("Vertical", 0))
sketch19.addConstraint(Sketcher.Constraint("Horizontal", 1))
sketch19.addConstraint(Sketcher.Constraint("DistanceX", 1, 2, 1, 1, 4.0))
sketch19.addConstraint(Sketcher.Constraint("DistanceY", -1, 1, 0, 2, 23.0))
sketch19.addConstraint(Sketcher.Constraint("DistanceY", 0, 2, 0, 1, 3.362551))
sketch19.addConstraint(Sketcher.Constraint("DistanceX", -1, 1, 0, 2, 7.622549))
pocket14 = body.newObject("PartDesign::Pocket", "Pocket013")
pocket14.Profile = sketch19
pocket14.Length = 26.2
body2 = doc.addObject("PartDesign::Body", "Body001")

sketch20 = body2.newObject("Sketcher::SketchObject", "Sketch019")
sketch20.AttachmentSupport = (doc.getObject("YZ_Plane001"), [""])
sketch20.MapMode = "FlatFace"
sketch20.AttachmentOffset = App.Placement(App.Vector(0, 0, -23.287263), App.Rotation())
sketch20.addGeometry(Part.LineSegment(App.Vector(-3.627451, 15, 0), App.Vector(-5.127451, 15, 0)), False)
sketch20.addGeometry(Part.ArcOfCircle(Part.Circle(App.Vector(15.603607, 13.153614, 0), App.Vector(0, 0, 1), 20.813119), math.radians(120.195617), math.radians(174.910451)), False)
sketch20.addGeometry(Part.LineSegment(App.Vector(5.135569, 31.142669, 0), App.Vector(5.952737, 29.884799, 0)), False)
sketch20.addGeometry(Part.ArcOfCircle(Part.Circle(App.Vector(16.362291, 12.659568, 0), App.Vector(0, 0, 1), 20.126286), math.radians(121.145414), math.radians(173.322117)), False)
sketch20.addConstraint(Sketcher.Constraint("Coincident", 0, 2, 1, 2))
sketch20.addConstraint(Sketcher.Constraint("Coincident", 1, 1, 2, 1))
sketch20.addConstraint(Sketcher.Constraint("Coincident", 2, 2, 3, 1))
sketch20.addConstraint(Sketcher.Constraint("Coincident", 3, 2, 0, 1))
sketch20.addConstraint(Sketcher.Constraint("Horizontal", 0))
sketch20.addConstraint(Sketcher.Constraint("DistanceX", 0, 2, 0, 1, 1.5))
sketch20.addConstraint(Sketcher.Constraint("DistanceY", -1, 1, 0, 2, 15.0))
sketch20.addConstraint(Sketcher.Constraint("Distance", 2, 1.5))
sketch20.addConstraint(Sketcher.Constraint("Radius", 1, 20.813119))
sketch20.addConstraint(Sketcher.Constraint("Radius", 3, 20.126286))
sketch20.addConstraint(Sketcher.Constraint("DistanceY", -1, 1, 2, 2, 29.884799))
sketch20.addConstraint(Sketcher.Constraint("DistanceY", 3, 3, 1, 1, 18.483101))
sketch20.addConstraint(Sketcher.Constraint("DistanceX", -1, 1, 3, 3, 16.362291))
sketch20.addConstraint(Sketcher.Constraint("DistanceX", 0, 2, -1, 1, 5.127451))
pad6 = body2.newObject("PartDesign::Pad", "Pad005")
pad6.Profile = sketch20
pad6.Length = 17.2
pad6.Reversed = True

sketch21 = body2.newObject("Sketcher::SketchObject", "Sketch020")
sketch21.Placement = App.Placement(App.Vector(-31.887263, -17.143533, 37.943057), App.Rotation(App.Vector(-1, 0, 0), App.Vector(0, -0.573576436, -0.819152044), App.Vector(0, -0.819152044, 0.573576436), "ZXY"))
sketch21.addGeometry(Part.LineSegment(App.Vector(6.5, -15, 0), App.Vector(6.5, 0, 0)), False)
sketch21.addGeometry(Part.ArcOfCircle(Part.Circle(App.Vector(0, 0, 0), App.Vector(0, 0, 1), 6.5), math.radians(0), math.radians(180)), False)
sketch21.addGeometry(Part.LineSegment(App.Vector(-6.5, 0, 0), App.Vector(-6.5, -15, 0)), False)
sketch21.addGeometry(Part.LineSegment(App.Vector(-6.5, -15, 0), App.Vector(6.5, -15, 0)), False)
sketch21.addConstraint(Sketcher.Constraint("Tangent", 0, 2, 1, 1))
sketch21.addConstraint(Sketcher.Constraint("Tangent", 1, 2, 2, 1))
sketch21.addConstraint(Sketcher.Constraint("Coincident", 2, 2, 3, 1))
sketch21.addConstraint(Sketcher.Constraint("Coincident", 3, 2, 0, 1))
sketch21.addConstraint(Sketcher.Constraint("Vertical", 0))
sketch21.addConstraint(Sketcher.Constraint("Vertical", 2))
sketch21.addConstraint(Sketcher.Constraint("Horizontal", 3))
sketch21.addConstraint(Sketcher.Constraint("Coincident", 1, 3, -1, 1))
sketch21.addConstraint(Sketcher.Constraint("Radius", 1, 6.5))
sketch21.addConstraint(Sketcher.Constraint("DistanceY", 0, 1, 0, 2, 15.0))

sketch22 = body2.newObject("Sketcher::SketchObject", "Sketch021")
sketch22.Placement = App.Placement(App.Vector(0, 12.187356, 17.405348), App.Rotation(App.Vector(0, 0.819152044, -0.573576436), App.Vector(0.999999999, 0, 0), App.Vector(0, -0.573576436, -0.819152044), "ZXY"))
sketch22.addGeometry(Part.LineSegment(App.Vector(4.193596, -31.887263, 0), App.Vector(-35.806404, -31.887263, 0)), False)
sketch22.addConstraint(Sketcher.Constraint("Horizontal", 0))
sketch22.addConstraint(Sketcher.Constraint("DistanceX", 0, 2, 0, 1, 40.0))
sketch22.addConstraint(Sketcher.Constraint("DistanceX", -1, 1, 0, 1, 4.193596))
sketch22.addConstraint(Sketcher.Constraint("DistanceY", 0, 1, -1, 1, 31.887263))
doc.recompute()

subtractivepipe = body2.newObject("PartDesign::SubtractivePipe", "SubtractivePipe")
subtractivepipe.Profile = sketch21
subtractivepipe.Spine = (sketch22, ["Edge1"])

sketch23 = body2.newObject("Sketcher::SketchObject", "Sketch022")
sketch23.Placement = App.Placement(App.Vector(-31.887263, -19.018467, 35), App.Rotation(App.Vector(-1, 0, 0), App.Vector(0, -0.5, -0.866025404), App.Vector(0, -0.866025404, 0.5), "ZXY"))
sketch23.addGeometry(Part.Circle(App.Vector(0, 0, 0), App.Vector(0, 0, 1), 6.5), False)
sketch23.addConstraint(Sketcher.Constraint("Coincident", 0, 3, -1, 1))
sketch23.addConstraint(Sketcher.Constraint("Diameter", 0, 13.0))

sketch24 = body2.newObject("Sketcher::SketchObject", "Sketch023")
sketch24.Placement = App.Placement(App.Vector(0, 10.400828, 18.014762), App.Rotation(App.Vector(0, 0.866025404, -0.5), App.Vector(1, 0, 0), App.Vector(0, -0.5, -0.866025404), "ZXY"))
sketch24.addGeometry(Part.LineSegment(App.Vector(6.029524, -31.887263, 0), App.Vector(-33.970476, -31.887263, 0)), False)
sketch24.addConstraint(Sketcher.Constraint("Horizontal", 0))
sketch24.addConstraint(Sketcher.Constraint("DistanceX", 0, 2, 0, 1, 40.0))
sketch24.addConstraint(Sketcher.Constraint("DistanceX", -1, 1, 0, 1, 6.029524))
sketch24.addConstraint(Sketcher.Constraint("DistanceY", 0, 1, -1, 1, 31.887263))
doc.recompute()

subtractivepipe2 = body2.newObject("PartDesign::SubtractivePipe", "SubtractivePipe001")
subtractivepipe2.Profile = sketch23
subtractivepipe2.Spine = (sketch24, ["Edge1"])

sketch25 = body2.newObject("Sketcher::SketchObject", "Sketch024")
sketch25.Placement = App.Placement(App.Vector(-31.887263, -20.629762, 31.90473), App.Rotation(App.Vector(-1, 0, 0), App.Vector(0, -0.422618262, -0.906307787), App.Vector(0, -0.906307787, 0.422618262), "ZXY"))
sketch25.addGeometry(Part.Circle(App.Vector(0, 0, 0), App.Vector(0, 0, 1), 6.5), False)
sketch25.addConstraint(Sketcher.Constraint("Coincident", 0, 3, -1, 1))
sketch25.addConstraint(Sketcher.Constraint("Diameter", 0, 13.0))

sketch26 = body2.newObject("Sketcher::SketchObject", "Sketch025")
sketch26.Placement = App.Placement(App.Vector(0, 8.535617, 18.304691), App.Rotation(App.Vector(0, -0.906307787, 0.422618262), App.Vector(1, 0, 0), App.Vector(0, 0.422618262, 0.906307787), "ZXY"))
sketch26.addGeometry(Part.LineSegment(App.Vector(-7.819564, -31.887263, 0), App.Vector(32.180436, -31.887263, 0)), False)
sketch26.addConstraint(Sketcher.Constraint("Horizontal", 0))
sketch26.addConstraint(Sketcher.Constraint("DistanceX", 0, 1, 0, 2, 40.0))
sketch26.addConstraint(Sketcher.Constraint("DistanceX", 0, 1, -1, 1, 7.819564))
sketch26.addConstraint(Sketcher.Constraint("DistanceY", 0, 1, -1, 1, 31.887263))
doc.recompute()

subtractivepipe3 = body2.newObject("PartDesign::SubtractivePipe", "SubtractivePipe002")
subtractivepipe3.Profile = sketch25
subtractivepipe3.Spine = (sketch26, ["Edge1"])
body3 = doc.addObject("PartDesign::Body", "Body002")

sketch27 = body3.newObject("Sketcher::SketchObject", "Sketch026")
sketch27.AttachmentSupport = (doc.getObject("XY_Plane002"), [""])
sketch27.MapMode = "FlatFace"
sketch27.AttachmentOffset = App.Placement(App.Vector(0, 0, 35), App.Rotation())
add_polygon(sketch27, [(-23.287263, -7.377451), (-20.287263, -7.377451), (-20.287263, -4.377451), (-14.887263, -4.377451), (-14.887263, 4.827803), (-23.287263, 4.827803)])
sketch27.addConstraint(Sketcher.Constraint("Horizontal", 0))
sketch27.addConstraint(Sketcher.Constraint("Vertical", 1))
sketch27.addConstraint(Sketcher.Constraint("Horizontal", 2))
sketch27.addConstraint(Sketcher.Constraint("Vertical", 3))
sketch27.addConstraint(Sketcher.Constraint("Horizontal", 4))
sketch27.addConstraint(Sketcher.Constraint("Vertical", 5))
sketch27.addConstraint(Sketcher.Constraint("Equal", 0, 1))
sketch27.addConstraint(Sketcher.Constraint("DistanceX", 0, 1, 0, 2, 3.0))
sketch27.addConstraint(Sketcher.Constraint("DistanceX", 2, 1, 2, 2, 5.4))
sketch27.addConstraint(Sketcher.Constraint("DistanceY", 3, 1, 3, 2, 9.205254))
sketch27.addConstraint(Sketcher.Constraint("DistanceY", 0, 2, -1, 1, 7.377451))
sketch27.addConstraint(Sketcher.Constraint("DistanceX", 0, 2, -1, 1, 20.287263))
pad7 = body3.newObject("PartDesign::Pad", "Pad006")
pad7.Profile = sketch27
pad7.Length = 2
body4 = doc.addObject("PartDesign::Body", "Body003")

sketch28 = body4.newObject("Sketcher::SketchObject", "Sketch027")
sketch28.AttachmentSupport = (doc.getObject("XY_Plane003"), [""])
sketch28.MapMode = "FlatFace"
sketch28.AttachmentOffset = App.Placement(App.Vector(0, 0, 35), App.Rotation())
add_polygon(sketch28, [(-40.487263, -7.377451), (-40.487263, 4.827803), (-48.887263, 4.827803), (-48.887263, -4.377451), (-43.487263, -4.377451), (-43.487263, -7.377451)])
sketch28.addConstraint(Sketcher.Constraint("Vertical", 0))
sketch28.addConstraint(Sketcher.Constraint("Horizontal", 1))
sketch28.addConstraint(Sketcher.Constraint("Vertical", 2))
sketch28.addConstraint(Sketcher.Constraint("Horizontal", 3))
sketch28.addConstraint(Sketcher.Constraint("Vertical", 4))
sketch28.addConstraint(Sketcher.Constraint("Horizontal", 5))
sketch28.addConstraint(Sketcher.Constraint("Equal", 5, 4))
sketch28.addConstraint(Sketcher.Constraint("DistanceX", 5, 1, 5, 2, 3.0))
sketch28.addConstraint(Sketcher.Constraint("DistanceX", 1, 2, 1, 1, 8.4))
sketch28.addConstraint(Sketcher.Constraint("DistanceY", 0, 1, 0, 2, 12.205254))
sketch28.addConstraint(Sketcher.Constraint("DistanceY", 2, 2, -1, 1, 4.377451))
sketch28.addConstraint(Sketcher.Constraint("DistanceX", 0, 2, -1, 1, 40.487263))
pad8 = body4.newObject("PartDesign::Pad", "Pad007")
pad8.Profile = sketch28
pad8.Length = 2
doc.recompute()

boolean = body.newObject("PartDesign::Boolean", "Boolean")
boolean.Type = "Fuse"
boolean.addObjects([body3])
doc.recompute()

boolean2 = body.newObject("PartDesign::Boolean", "Boolean001")
boolean2.Type = "Fuse"
boolean2.addObjects([body4])

sketch29 = body.newObject("Sketcher::SketchObject", "Sketch028")
sketch29.AttachmentSupport = (doc.getObject("XZ_Plane"), [""])
sketch29.MapMode = "FlatFace"
sketch29.AttachmentOffset = App.Placement(App.Vector(0, 0, 4.377451), App.Rotation())
add_polygon(sketch29, [(-48.887263, 0), (-43.487263, 10), (-43.487263, 37), (-48.887263, 37)])
add_polygon(sketch29, [(-14.887263, 0), (-14.887263, 37), (-20.287263, 37), (-20.287263, 10)])
sketch29.addConstraint(Sketcher.Constraint("Vertical", 1))
sketch29.addConstraint(Sketcher.Constraint("Horizontal", 2))
sketch29.addConstraint(Sketcher.Constraint("Vertical", 3))
sketch29.addConstraint(Sketcher.Constraint("Vertical", 4))
sketch29.addConstraint(Sketcher.Constraint("Horizontal", 5))
sketch29.addConstraint(Sketcher.Constraint("Vertical", 6))
sketch29.addConstraint(Sketcher.Constraint("PointOnObject", 3, 2, -1))
sketch29.addConstraint(Sketcher.Constraint("PointOnObject", 7, 2, -1))
sketch29.addConstraint(Sketcher.Constraint("Horizontal", 2, 2, 4, 2))
sketch29.addConstraint(Sketcher.Constraint("Horizontal", 0, 2, 6, 2))
sketch29.addConstraint(Sketcher.Constraint("Equal", 2, 5))
sketch29.addConstraint(Sketcher.Constraint("DistanceY", 1, 1, 1, 2, 27.0))
sketch29.addConstraint(Sketcher.Constraint("DistanceY", 3, 2, 3, 1, 37.0))
sketch29.addConstraint(Sketcher.Constraint("DistanceX", 2, 2, 2, 1, 5.4))
sketch29.addConstraint(Sketcher.Constraint("DistanceX", 2, 2, 4, 2, 34.0))
sketch29.addConstraint(Sketcher.Constraint("DistanceX", 0, 2, -1, 1, 43.487263))
pad9 = body.newObject("PartDesign::Pad", "Pad008")
pad9.Profile = sketch29
pad9.Length = 1
doc.recompute()

boolean3 = body.newObject("PartDesign::Boolean", "Boolean002")
boolean3.Type = "Fuse"
boolean3.addObjects([body2])

sketch30 = body.newObject("Sketcher::SketchObject", "Sketch029")
sketch30.AttachmentSupport = (doc.getObject("XY_Plane"), [""])
sketch30.MapMode = "FlatFace"
sketch30.AttachmentOffset = App.Placement(App.Vector(0, 0, 15), App.Rotation())
add_polygon(sketch30, [(-23.287263, -3.627451), (-23.287263, -5.127451), (-40.487263, -5.127451), (-40.487263, -3.627451)])
sketch30.addConstraint(Sketcher.Constraint("Vertical", 0))
sketch30.addConstraint(Sketcher.Constraint("Horizontal", 1))
sketch30.addConstraint(Sketcher.Constraint("Vertical", 2))
sketch30.addConstraint(Sketcher.Constraint("Horizontal", 3))
sketch30.addConstraint(Sketcher.Constraint("DistanceX", 1, 2, 1, 1, 17.2))
sketch30.addConstraint(Sketcher.Constraint("DistanceY", 0, 2, 0, 1, 1.5))
sketch30.addConstraint(Sketcher.Constraint("DistanceY", 0, 2, -1, 1, 5.127451))
sketch30.addConstraint(Sketcher.Constraint("DistanceX", 0, 2, -1, 1, 23.287263))
pad10 = body.newObject("PartDesign::Pad", "Pad009")
pad10.Profile = sketch30
pad10.Length = 11
pad10.Reversed = True

sketch31 = body.newObject("Sketcher::SketchObject", "Sketch030")
sketch31.AttachmentSupport = (doc.getObject("YZ_Plane"), [""])
sketch31.MapMode = "FlatFace"
sketch31.AttachmentOffset = App.Placement(App.Vector(0, 0, -40.487263), App.Rotation())
add_polygon(sketch31, [(-4.377451, 4), (-5.127451, 4), (-4.377451, 0)])
sketch31.addConstraint(Sketcher.Constraint("Horizontal", 0))
sketch31.addConstraint(Sketcher.Constraint("Vertical", 2))
sketch31.addConstraint(Sketcher.Constraint("PointOnObject", 1, 2, -1))
sketch31.addConstraint(Sketcher.Constraint("DistanceY", 2, 1, 2, 2, 4.0))
sketch31.addConstraint(Sketcher.Constraint("DistanceX", 0, 2, 0, 1, 0.75))
sketch31.addConstraint(Sketcher.Constraint("DistanceX", 0, 2, -1, 1, 5.127451))
pad11 = body.newObject("PartDesign::Pad", "Pad010")
pad11.Profile = sketch31
pad11.Length = 17.2

sketch32 = body.newObject("Sketcher::SketchObject", "Sketch031")
sketch32.AttachmentSupport = (doc.getObject("XZ_Plane"), [""])
sketch32.MapMode = "FlatFace"
sketch32.AttachmentOffset = App.Placement(App.Vector(0, 0, 7.377451), App.Rotation())
add_polygon(sketch32, [(-43.487263, 28), (-43.487263, 13), (-40.487263, 13), (-40.487263, 28)])
add_polygon(sketch32, [(-23.287263, 28), (-23.287263, 13), (-20.287263, 13), (-20.287263, 28)])
sketch32.addConstraint(Sketcher.Constraint("Vertical", 0))
sketch32.addConstraint(Sketcher.Constraint("Horizontal", 1))
sketch32.addConstraint(Sketcher.Constraint("Vertical", 2))
sketch32.addConstraint(Sketcher.Constraint("Horizontal", 3))
sketch32.addConstraint(Sketcher.Constraint("Vertical", 4))
sketch32.addConstraint(Sketcher.Constraint("Horizontal", 5))
sketch32.addConstraint(Sketcher.Constraint("Vertical", 6))
sketch32.addConstraint(Sketcher.Constraint("Horizontal", 7))
sketch32.addConstraint(Sketcher.Constraint("Horizontal", 1, 2, 4, 2))
sketch32.addConstraint(Sketcher.Constraint("Horizontal", 3, 2, 6, 2))
sketch32.addConstraint(Sketcher.Constraint("Equal", 3, 5))
sketch32.addConstraint(Sketcher.Constraint("DistanceX", 1, 1, 1, 2, 3.0))
sketch32.addConstraint(Sketcher.Constraint("DistanceY", 0, 2, 0, 1, 15.0))
sketch32.addConstraint(Sketcher.Constraint("DistanceY", -1, 1, 0, 2, 13.0))
sketch32.addConstraint(Sketcher.Constraint("DistanceX", 1, 2, 4, 2, 17.2))
sketch32.addConstraint(Sketcher.Constraint("DistanceX", 0, 2, -1, 1, 43.487263))
pad12 = body.newObject("PartDesign::Pad", "Pad011")
pad12.Profile = sketch32
pad12.Length = 1.5

sketch33 = body.newObject("Sketcher::SketchObject", "Sketch032")
sketch33.AttachmentSupport = (doc.getObject("XZ_Plane"), [""])
sketch33.MapMode = "FlatFace"
sketch33.AttachmentOffset = App.Placement(App.Vector(0, 0, 7.377451), App.Rotation())
add_polygon(sketch33, [(-43.487263, 37), (-43.487263, 28), (-20.287263, 28), (-20.287263, 37)])
sketch33.addConstraint(Sketcher.Constraint("Vertical", 0))
sketch33.addConstraint(Sketcher.Constraint("Horizontal", 1))
sketch33.addConstraint(Sketcher.Constraint("Vertical", 2))
sketch33.addConstraint(Sketcher.Constraint("Horizontal", 3))
sketch33.addConstraint(Sketcher.Constraint("DistanceY", 0, 2, 0, 1, 9.0))
sketch33.addConstraint(Sketcher.Constraint("DistanceX", 1, 1, 1, 2, 23.2))
sketch33.addConstraint(Sketcher.Constraint("DistanceY", -1, 1, 0, 2, 28.0))
sketch33.addConstraint(Sketcher.Constraint("DistanceX", 0, 2, -1, 1, 43.487263))
pocket15 = body.newObject("PartDesign::Pocket", "Pocket014")
pocket15.Profile = sketch33
pocket15.Length = 2

sketch34 = body.newObject("Sketcher::SketchObject", "Sketch033")
sketch34.AttachmentSupport = (doc.getObject("YZ_Plane"), [""])
sketch34.MapMode = "FlatFace"
sketch34.AttachmentOffset = App.Placement(App.Vector(0, 0, -20.287263), App.Rotation())
add_polygon(sketch34, [(-8.877451, 14.5), (-7.377451, 13), (-8.877451, 13)])
sketch34.addConstraint(Sketcher.Constraint("Horizontal", 1))
sketch34.addConstraint(Sketcher.Constraint("Vertical", 2))
sketch34.addConstraint(Sketcher.Constraint("Equal", 1, 2))
sketch34.addConstraint(Sketcher.Constraint("DistanceX", 1, 2, 1, 1, 1.5))
sketch34.addConstraint(Sketcher.Constraint("DistanceY", -1, 1, 0, 2, 13.0))
sketch34.addConstraint(Sketcher.Constraint("DistanceX", 0, 2, -1, 1, 7.377451))
pocket16 = body.newObject("PartDesign::Pocket", "Pocket015")
pocket16.Profile = sketch34
pocket16.Length = 23.2

sketch35 = body.newObject("Sketcher::SketchObject", "Sketch034")
sketch35.AttachmentSupport = (doc.getObject("XY_Plane"), [""])
sketch35.MapMode = "FlatFace"
sketch35.AttachmentOffset = App.Placement(App.Vector(0, 0, 37), App.Rotation())
add_polygon(sketch35, [(-48.887263, 6.095358), (-48.887263, -5.377451), (-14.887263, -5.377451), (-14.887263, 6.095358)])
sketch35.addConstraint(Sketcher.Constraint("Vertical", 0))
sketch35.addConstraint(Sketcher.Constraint("Horizontal", 1))
sketch35.addConstraint(Sketcher.Constraint("Vertical", 2))
sketch35.addConstraint(Sketcher.Constraint("Horizontal", 3))
sketch35.addConstraint(Sketcher.Constraint("DistanceX", 1, 1, 1, 2, 34.0))
sketch35.addConstraint(Sketcher.Constraint("DistanceY", 0, 2, 0, 1, 11.472809))
sketch35.addConstraint(Sketcher.Constraint("DistanceY", 0, 2, -1, 1, 5.377451))
sketch35.addConstraint(Sketcher.Constraint("DistanceX", 0, 2, -1, 1, 48.887263))
pocket17 = body.newObject("PartDesign::Pocket", "Pocket016")
pocket17.Profile = sketch35
pocket17.Length = 2.2

doc.recompute()
